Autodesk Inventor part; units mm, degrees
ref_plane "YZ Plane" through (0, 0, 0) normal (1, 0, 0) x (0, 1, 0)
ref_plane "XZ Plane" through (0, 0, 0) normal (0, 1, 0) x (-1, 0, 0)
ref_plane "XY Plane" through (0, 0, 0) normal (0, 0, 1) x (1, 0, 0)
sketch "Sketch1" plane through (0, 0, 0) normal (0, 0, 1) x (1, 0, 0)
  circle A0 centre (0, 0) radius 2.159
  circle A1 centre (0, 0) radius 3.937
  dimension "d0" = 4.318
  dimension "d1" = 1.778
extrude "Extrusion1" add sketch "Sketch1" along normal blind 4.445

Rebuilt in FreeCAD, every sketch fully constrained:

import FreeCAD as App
import Part
import Sketcher
Q = App.Units.Quantity

doc = App.newDocument("Part")
body = doc.addObject("PartDesign::Body", "Body")

sketch1 = body.newObject("Sketcher::SketchObject", "Sketch")
sketch1.AttachmentSupport = (doc.getObject("XY_Plane"), [""])
sketch1.MapMode = "FlatFace"
sketch1.addGeometry(Part.Circle(App.Vector(0, 0, 0), App.Vector(0, 0, 1), 3.9), False)
sketch1.addGeometry(Part.Circle(App.Vector(0, 0, 0), App.Vector(0, 0, 1), 2.2), False)
sketch1.addConstraint(Sketcher.Constraint("Coincident", 0, 3, -1, 1))
sketch1.addConstraint(Sketcher.Constraint("Coincident", 1, 3, -1, 1))
sketch1.addConstraint(Sketcher.Constraint("Diameter", 1, Q("0.17 in")))
sketch1.addConstraint(Sketcher.Constraint("Diameter", 0, Q("0.31 in")))
pad1 = body.newObject("PartDesign::Pad", "Pad")
pad1.Profile = sketch1
pad1.Length = Q("0.175 in")

doc.recompute()
